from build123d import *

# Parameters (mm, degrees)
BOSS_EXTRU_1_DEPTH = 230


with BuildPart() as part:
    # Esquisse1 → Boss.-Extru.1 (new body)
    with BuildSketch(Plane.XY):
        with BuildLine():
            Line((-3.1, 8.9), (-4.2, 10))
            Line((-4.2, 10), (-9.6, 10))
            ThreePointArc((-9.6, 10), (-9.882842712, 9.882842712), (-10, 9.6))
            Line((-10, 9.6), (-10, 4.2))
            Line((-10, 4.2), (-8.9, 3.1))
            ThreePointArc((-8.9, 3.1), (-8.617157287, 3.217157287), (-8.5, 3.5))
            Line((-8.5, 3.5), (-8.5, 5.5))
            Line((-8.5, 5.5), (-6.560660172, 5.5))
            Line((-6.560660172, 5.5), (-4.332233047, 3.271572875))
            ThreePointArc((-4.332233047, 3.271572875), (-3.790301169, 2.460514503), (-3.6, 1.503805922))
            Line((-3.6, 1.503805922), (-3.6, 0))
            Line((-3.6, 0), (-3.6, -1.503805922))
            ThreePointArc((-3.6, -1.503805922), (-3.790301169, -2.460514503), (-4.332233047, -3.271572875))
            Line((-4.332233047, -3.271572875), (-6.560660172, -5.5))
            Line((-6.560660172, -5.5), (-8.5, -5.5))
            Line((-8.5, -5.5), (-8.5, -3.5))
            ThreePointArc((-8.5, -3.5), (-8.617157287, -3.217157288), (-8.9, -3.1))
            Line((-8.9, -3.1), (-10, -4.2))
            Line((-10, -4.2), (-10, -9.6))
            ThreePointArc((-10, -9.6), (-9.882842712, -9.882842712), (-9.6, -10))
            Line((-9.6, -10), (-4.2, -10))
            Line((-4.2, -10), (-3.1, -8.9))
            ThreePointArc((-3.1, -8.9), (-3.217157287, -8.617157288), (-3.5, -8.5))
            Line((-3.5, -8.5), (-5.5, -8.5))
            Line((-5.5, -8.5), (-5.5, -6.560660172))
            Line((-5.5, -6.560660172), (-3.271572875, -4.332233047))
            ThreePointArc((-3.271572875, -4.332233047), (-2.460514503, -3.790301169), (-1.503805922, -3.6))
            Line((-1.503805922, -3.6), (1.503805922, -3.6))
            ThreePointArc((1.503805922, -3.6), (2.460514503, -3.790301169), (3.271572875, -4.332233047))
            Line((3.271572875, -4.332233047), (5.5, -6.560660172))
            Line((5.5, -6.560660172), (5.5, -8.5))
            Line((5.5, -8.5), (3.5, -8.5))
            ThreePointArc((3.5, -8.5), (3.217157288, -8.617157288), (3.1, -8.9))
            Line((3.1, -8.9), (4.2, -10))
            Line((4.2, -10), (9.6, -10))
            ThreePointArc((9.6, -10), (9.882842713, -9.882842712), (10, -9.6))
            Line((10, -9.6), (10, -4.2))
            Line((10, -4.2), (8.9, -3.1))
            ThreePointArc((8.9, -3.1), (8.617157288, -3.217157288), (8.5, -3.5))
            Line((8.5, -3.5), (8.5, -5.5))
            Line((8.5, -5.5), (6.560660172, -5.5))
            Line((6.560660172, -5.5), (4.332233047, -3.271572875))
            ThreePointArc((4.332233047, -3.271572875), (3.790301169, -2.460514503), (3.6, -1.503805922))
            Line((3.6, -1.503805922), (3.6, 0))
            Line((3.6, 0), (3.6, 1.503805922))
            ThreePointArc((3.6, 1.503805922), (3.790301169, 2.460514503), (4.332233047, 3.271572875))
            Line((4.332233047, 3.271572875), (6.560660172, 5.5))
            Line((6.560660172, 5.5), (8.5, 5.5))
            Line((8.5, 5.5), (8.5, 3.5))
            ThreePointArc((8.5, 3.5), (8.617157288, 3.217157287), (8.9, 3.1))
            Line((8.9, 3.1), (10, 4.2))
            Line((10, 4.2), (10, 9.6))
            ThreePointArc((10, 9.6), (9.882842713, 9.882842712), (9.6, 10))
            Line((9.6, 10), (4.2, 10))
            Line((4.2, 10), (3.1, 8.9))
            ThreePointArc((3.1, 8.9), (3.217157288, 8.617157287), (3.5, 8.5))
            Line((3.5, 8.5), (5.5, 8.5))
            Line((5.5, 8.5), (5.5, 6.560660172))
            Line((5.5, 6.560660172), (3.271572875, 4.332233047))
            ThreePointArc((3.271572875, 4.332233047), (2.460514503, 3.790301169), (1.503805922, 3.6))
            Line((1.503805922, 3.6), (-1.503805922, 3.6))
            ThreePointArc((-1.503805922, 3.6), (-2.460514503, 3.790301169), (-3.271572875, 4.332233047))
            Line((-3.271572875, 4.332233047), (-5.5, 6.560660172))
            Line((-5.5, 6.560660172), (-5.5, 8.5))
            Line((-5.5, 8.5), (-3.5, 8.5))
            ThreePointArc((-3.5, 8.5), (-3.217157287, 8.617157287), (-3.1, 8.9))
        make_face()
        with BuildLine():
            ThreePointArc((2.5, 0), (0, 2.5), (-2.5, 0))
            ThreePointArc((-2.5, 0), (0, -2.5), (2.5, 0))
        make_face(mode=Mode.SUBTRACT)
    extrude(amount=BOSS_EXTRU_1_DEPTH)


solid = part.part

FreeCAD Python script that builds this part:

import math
import FreeCAD as App
import Part
import Sketcher

V = App.Vector
Q = App.Units.Quantity

doc = App.newDocument("Part")
body = doc.addObject("PartDesign::Body", "Body")

# Sketch on XY plane
sketch1 = doc.addObject("Sketcher::SketchObject", "Sketch")
body.addObject(sketch1)
sketch1.AttachmentSupport = (doc.XY_Plane, [""])
sketch1.MapMode = "FlatFace"
sketch1.addGeometry(Part.LineSegment(V(-3.1, 8.9, 0), V(-4.2, 10, 0)), False)
sketch1.addGeometry(Part.LineSegment(V(-4.2, 10, 0), V(-9.6, 10, 0)), False)
sketch1.addGeometry(Part.ArcOfCircle(Part.Circle(V(-9.6, 9.6, 0), V(0, 0, 1), 0.4), math.radians(90), math.radians(180)), False)
sketch1.addGeometry(Part.LineSegment(V(-10, 9.6, 0), V(-10, 4.2, 0)), False)
sketch1.addGeometry(Part.LineSegment(V(-10, 4.2, 0), V(-8.9, 3.1, 0)), False)
sketch1.addGeometry(Part.ArcOfCircle(Part.Circle(V(-8.9, 3.5, 0), V(0, 0, 1), 0.4), math.radians(-90), math.radians(0)), False)
sketch1.addGeometry(Part.LineSegment(V(-8.5, 3.5, 0), V(-8.5, 5.5, 0)), False)
sketch1.addGeometry(Part.LineSegment(V(-8.5, 5.5, 0), V(-6.56, 5.5, 0)), False)
sketch1.addGeometry(Part.LineSegment(V(-6.56, 5.5, 0), V(-4.33, 3.27, 0)), False)
sketch1.addGeometry(Part.ArcOfCircle(Part.Circle(V(-6.1, 1.5, 0), V(0, 0, 1), 2.5), math.radians(0), math.radians(45)), False)
sketch1.addGeometry(Part.LineSegment(V(-3.6, 1.5, 0), V(-3.6, -1.5, 0)), False)
sketch1.addGeometry(Part.ArcOfCircle(Part.Circle(V(-6.1, -1.5, 0), V(0, 0, 1), 2.5), math.radians(-45), math.radians(0)), False)
sketch1.addGeometry(Part.LineSegment(V(-4.33, -3.27, 0), V(-6.56, -5.5, 0)), False)
sketch1.addGeometry(Part.LineSegment(V(-6.56, -5.5, 0), V(-8.5, -5.5, 0)), False)
sketch1.addGeometry(Part.LineSegment(V(-8.5, -5.5, 0), V(-8.5, -3.5, 0)), False)
sketch1.addGeometry(Part.ArcOfCircle(Part.Circle(V(-8.9, -3.5, 0), V(0, 0, 1), 0.4), math.radians(0), math.radians(90)), False)
sketch1.addGeometry(Part.LineSegment(V(-8.9, -3.1, 0), V(-10, -4.2, 0)), False)
sketch1.addGeometry(Part.LineSegment(V(-10, -4.2, 0), V(-10, -9.6, 0)), False)
sketch1.addGeometry(Part.ArcOfCircle(Part.Circle(V(-9.6, -9.6, 0), V(0, 0, 1), 0.4), math.radians(-180), math.radians(-90)), False)
sketch1.addGeometry(Part.LineSegment(V(-9.6, -10, 0), V(-4.2, -10, 0)), False)
sketch1.addGeometry(Part.LineSegment(V(-4.2, -10, 0), V(-3.1, -8.9, 0)), False)
sketch1.addGeometry(Part.ArcOfCircle(Part.Circle(V(-3.5, -8.9, 0), V(0, 0, 1), 0.4), math.radians(0), math.radians(90)), False)
sketch1.addGeometry(Part.LineSegment(V(-3.5, -8.5, 0), V(-5.5, -8.5, 0)), False)
sketch1.addGeometry(Part.LineSegment(V(-5.5, -8.5, 0), V(-5.5, -6.56, 0)), False)
sketch1.addGeometry(Part.LineSegment(V(-5.5, -6.56, 0), V(-3.27, -4.33, 0)), False)
sketch1.addGeometry(Part.ArcOfCircle(Part.Circle(V(-1.5, -6.1, 0), V(0, 0, 1), 2.5), math.radians(90), math.radians(135)), False)
sketch1.addGeometry(Part.LineSegment(V(-1.5, -3.6, 0), V(1.5, -3.6, 0)), False)
sketch1.addGeometry(Part.ArcOfCircle(Part.Circle(V(1.5, -6.1, 0), V(0, 0, 1), 2.5), math.radians(45), math.radians(90)), False)
sketch1.addGeometry(Part.LineSegment(V(3.27, -4.33, 0), V(5.5, -6.56, 0)), False)
sketch1.addGeometry(Part.LineSegment(V(5.5, -6.56, 0), V(5.5, -8.5, 0)), False)
sketch1.addGeometry(Part.LineSegment(V(5.5, -8.5, 0), V(3.5, -8.5, 0)), False)
sketch1.addGeometry(Part.ArcOfCircle(Part.Circle(V(3.5, -8.9, 0), V(0, 0, 1), 0.4), math.radians(90), math.radians(180)), False)
sketch1.addGeometry(Part.LineSegment(V(3.1, -8.9, 0), V(4.2, -10, 0)), False)
sketch1.addGeometry(Part.LineSegment(V(4.2, -10, 0), V(9.6, -10, 0)), False)
sketch1.addGeometry(Part.ArcOfCircle(Part.Circle(V(9.6, -9.6, 0), V(0, 0, 1), 0.4), math.radians(-90), math.radians(0)), False)
sketch1.addGeometry(Part.LineSegment(V(10, -9.6, 0), V(10, -4.2, 0)), False)
sketch1.addGeometry(Part.LineSegment(V(10, -4.2, 0), V(8.9, -3.1, 0)), False)
sketch1.addGeometry(Part.ArcOfCircle(Part.Circle(V(8.9, -3.5, 0), V(0, 0, 1), 0.4), math.radians(90), math.radians(180)), False)
sketch1.addGeometry(Part.LineSegment(V(8.5, -3.5, 0), V(8.5, -5.5, 0)), False)
sketch1.addGeometry(Part.LineSegment(V(8.5, -5.5, 0), V(6.56, -5.5, 0)), False)
sketch1.addGeometry(Part.LineSegment(V(6.56, -5.5, 0), V(4.33, -3.27, 0)), False)
sketch1.addGeometry(Part.ArcOfCircle(Part.Circle(V(6.1, -1.5, 0), V(0, 0, 1), 2.5), math.radians(-180), math.radians(-135)), False)
sketch1.addGeometry(Part.LineSegment(V(3.6, -1.5, 0), V(3.6, 1.5, 0)), False)
sketch1.addGeometry(Part.ArcOfCircle(Part.Circle(V(6.1, 1.5, 0), V(0, 0, 1), 2.5), math.radians(135), math.radians(180)), False)
sketch1.addGeometry(Part.LineSegment(V(4.33, 3.27, 0), V(6.56, 5.5, 0)), False)
sketch1.addGeometry(Part.LineSegment(V(6.56, 5.5, 0), V(8.5, 5.5, 0)), False)
sketch1.addGeometry(Part.LineSegment(V(8.5, 5.5, 0), V(8.5, 3.5, 0)), False)
sketch1.addGeometry(Part.ArcOfCircle(Part.Circle(V(8.9, 3.5, 0), V(0, 0, 1), 0.4), math.radians(180), math.radians(270)), False)
sketch1.addGeometry(Part.LineSegment(V(8.9, 3.1, 0), V(10, 4.2, 0)), False)
sketch1.addGeometry(Part.LineSegment(V(10, 4.2, 0), V(10, 9.6, 0)), False)
sketch1.addGeometry(Part.ArcOfCircle(Part.Circle(V(9.6, 9.6, 0), V(0, 0, 1), 0.4), math.radians(0), math.radians(90)), False)
sketch1.addGeometry(Part.LineSegment(V(9.6, 10, 0), V(4.2, 10, 0)), False)
sketch1.addGeometry(Part.LineSegment(V(4.2, 10, 0), V(3.1, 8.9, 0)), False)
sketch1.addGeometry(Part.ArcOfCircle(Part.Circle(V(3.5, 8.9, 0), V(0, 0, 1), 0.4), math.radians(180), math.radians(270)), False)
sketch1.addGeometry(Part.LineSegment(V(3.5, 8.5, 0), V(5.5, 8.5, 0)), False)
sketch1.addGeometry(Part.LineSegment(V(5.5, 8.5, 0), V(5.5, 6.56, 0)), False)
sketch1.addGeometry(Part.LineSegment(V(5.5, 6.56, 0), V(3.27, 4.33, 0)), False)
sketch1.addGeometry(Part.ArcOfCircle(Part.Circle(V(1.5, 6.1, 0), V(0, 0, 1), 2.5), math.radians(-90), math.radians(-45)), False)
sketch1.addGeometry(Part.LineSegment(V(1.5, 3.6, 0), V(-1.5, 3.6, 0)), False)
sketch1.addGeometry(Part.ArcOfCircle(Part.Circle(V(-1.5, 6.1, 0), V(0, 0, 1), 2.5), math.radians(-135), math.radians(-90)), False)
sketch1.addGeometry(Part.LineSegment(V(-3.27, 4.33, 0), V(-5.5, 6.56, 0)), False)
sketch1.addGeometry(Part.LineSegment(V(-5.5, 6.56, 0), V(-5.5, 8.5, 0)), False)
sketch1.addGeometry(Part.LineSegment(V(-5.5, 8.5, 0), V(-3.5, 8.5, 0)), False)
sketch1.addGeometry(Part.ArcOfCircle(Part.Circle(V(-3.5, 8.9, 0), V(0, 0, 1), 0.4), math.radians(-90), math.radians(0)), False)
sketch1.addGeometry(Part.Circle(V(0, 0, 0), V(0, 0, 1), 2.5), False)
sketch1.addConstraint(Sketcher.Constraint("Coincident", 0, 2, 1, 1))
sketch1.addConstraint(Sketcher.Constraint("Tangent", 1, 2, 2, 1))
sketch1.addConstraint(Sketcher.Constraint("Tangent", 2, 2, 3, 1))
sketch1.addConstraint(Sketcher.Constraint("Coincident", 3, 2, 4, 1))
sketch1.addConstraint(Sketcher.Constraint("Coincident", 4, 2, 5, 1))
sketch1.addConstraint(Sketcher.Constraint("Tangent", 5, 2, 6, 1))
sketch1.addConstraint(Sketcher.Constraint("Coincident", 6, 2, 7, 1))
sketch1.addConstraint(Sketcher.Constraint("Coincident", 7, 2, 8, 1))
sketch1.addConstraint(Sketcher.Constraint("Tangent", 8, 2, 9, 2))
sketch1.addConstraint(Sketcher.Constraint("Tangent", 9, 1, 10, 1))
sketch1.addConstraint(Sketcher.Constraint("Tangent", 10, 2, 11, 2))
sketch1.addConstraint(Sketcher.Constraint("Tangent", 11, 1, 12, 1))
sketch1.addConstraint(Sketcher.Constraint("Coincident", 12, 2, 13, 1))
sketch1.addConstraint(Sketcher.Constraint("Coincident", 13, 2, 14, 1))
sketch1.addConstraint(Sketcher.Constraint("Tangent", 14, 2, 15, 1))
sketch1.addConstraint(Sketcher.Constraint("Coincident", 15, 2, 16, 1))
sketch1.addConstraint(Sketcher.Constraint("Coincident", 16, 2, 17, 1))
sketch1.addConstraint(Sketcher.Constraint("Tangent", 17, 2, 18, 1))
sketch1.addConstraint(Sketcher.Constraint("Tangent", 18, 2, 19, 1))
sketch1.addConstraint(Sketcher.Constraint("Coincident", 19, 2, 20, 1))
sketch1.addConstraint(Sketcher.Constraint("Coincident", 20, 2, 21, 1))
sketch1.addConstraint(Sketcher.Constraint("Tangent", 21, 2, 22, 1))
sketch1.addConstraint(Sketcher.Constraint("Coincident", 22, 2, 23, 1))
sketch1.addConstraint(Sketcher.Constraint("Coincident", 23, 2, 24, 1))
sketch1.addConstraint(Sketcher.Constraint("Tangent", 24, 2, 25, 2))
sketch1.addConstraint(Sketcher.Constraint("Tangent", 25, 1, 26, 1))
sketch1.addConstraint(Sketcher.Constraint("Tangent", 26, 2, 27, 2))
sketch1.addConstraint(Sketcher.Constraint("Tangent", 27, 1, 28, 1))
sketch1.addConstraint(Sketcher.Constraint("Coincident", 28, 2, 29, 1))
sketch1.addConstraint(Sketcher.Constraint("Coincident", 29, 2, 30, 1))
sketch1.addConstraint(Sketcher.Constraint("Tangent", 30, 2, 31, 1))
sketch1.addConstraint(Sketcher.Constraint("Coincident", 31, 2, 32, 1))
sketch1.addConstraint(Sketcher.Constraint("Coincident", 32, 2, 33, 1))
sketch1.addConstraint(Sketcher.Constraint("Tangent", 33, 2, 34, 1))
sketch1.addConstraint(Sketcher.Constraint("Tangent", 34, 2, 35, 1))
sketch1.addConstraint(Sketcher.Constraint("Coincident", 35, 2, 36, 1))
sketch1.addConstraint(Sketcher.Constraint("Coincident", 36, 2, 37, 1))
sketch1.addConstraint(Sketcher.Constraint("Tangent", 37, 2, 38, 1))
sketch1.addConstraint(Sketcher.Constraint("Coincident", 38, 2, 39, 1))
sketch1.addConstraint(Sketcher.Constraint("Coincident", 39, 2, 40, 1))
sketch1.addConstraint(Sketcher.Constraint("Tangent", 40, 2, 41, 2))
sketch1.addConstraint(Sketcher.Constraint("Tangent", 41, 1, 42, 1))
sketch1.addConstraint(Sketcher.Constraint("Tangent", 42, 2, 43, 2))
sketch1.addConstraint(Sketcher.Constraint("Tangent", 43, 1, 44, 1))
sketch1.addConstraint(Sketcher.Constraint("Coincident", 44, 2, 45, 1))
sketch1.addConstraint(Sketcher.Constraint("Coincident", 45, 2, 46, 1))
sketch1.addConstraint(Sketcher.Constraint("Tangent", 46, 2, 47, 1))
sketch1.addConstraint(Sketcher.Constraint("Coincident", 47, 2, 48, 1))
sketch1.addConstraint(Sketcher.Constraint("Coincident", 48, 2, 49, 1))
sketch1.addConstraint(Sketcher.Constraint("Tangent", 49, 2, 50, 1))
sketch1.addConstraint(Sketcher.Constraint("Tangent", 50, 2, 51, 1))
sketch1.addConstraint(Sketcher.Constraint("Coincident", 51, 2, 52, 1))
sketch1.addConstraint(Sketcher.Constraint("Coincident", 52, 2, 53, 1))
sketch1.addConstraint(Sketcher.Constraint("Tangent", 53, 2, 54, 1))
sketch1.addConstraint(Sketcher.Constraint("Coincident", 54, 2, 55, 1))
sketch1.addConstraint(Sketcher.Constraint("Coincident", 55, 2, 56, 1))
sketch1.addConstraint(Sketcher.Constraint("Tangent", 56, 2, 57, 2))
sketch1.addConstraint(Sketcher.Constraint("Tangent", 57, 1, 58, 1))
sketch1.addConstraint(Sketcher.Constraint("Tangent", 58, 2, 59, 2))
sketch1.addConstraint(Sketcher.Constraint("Tangent", 59, 1, 60, 1))
sketch1.addConstraint(Sketcher.Constraint("Coincident", 60, 2, 61, 1))
sketch1.addConstraint(Sketcher.Constraint("Coincident", 61, 2, 62, 1))
sketch1.addConstraint(Sketcher.Constraint("Tangent", 62, 2, 63, 1))
sketch1.addConstraint(Sketcher.Constraint("Coincident", 63, 2, 0, 1))
sketch1.addConstraint(Sketcher.Constraint("Horizontal", 1))
sketch1.addConstraint(Sketcher.Constraint("Vertical", 3))
sketch1.addConstraint(Sketcher.Constraint("Vertical", 6))
sketch1.addConstraint(Sketcher.Constraint("Horizontal", 7))
sketch1.addConstraint(Sketcher.Constraint("Vertical", 10))
sketch1.addConstraint(Sketcher.Constraint("Horizontal", 13))
sketch1.addConstraint(Sketcher.Constraint("Vertical", 14))
sketch1.addConstraint(Sketcher.Constraint("Vertical", 17))
sketch1.addConstraint(Sketcher.Constraint("Horizontal", 19))
sketch1.addConstraint(Sketcher.Constraint("Horizontal", 22))
sketch1.addConstraint(Sketcher.Constraint("Vertical", 23))
sketch1.addConstraint(Sketcher.Constraint("Horizontal", 26))
sketch1.addConstraint(Sketcher.Constraint("Vertical", 29))
sketch1.addConstraint(Sketcher.Constraint("Horizontal", 30))
sketch1.addConstraint(Sketcher.Constraint("Horizontal", 33))
sketch1.addConstraint(Sketcher.Constraint("Vertical", 35))
sketch1.addConstraint(Sketcher.Constraint("Vertical", 38))
sketch1.addConstraint(Sketcher.Constraint("Horizontal", 39))
sketch1.addConstraint(Sketcher.Constraint("Vertical", 42))
sketch1.addConstraint(Sketcher.Constraint("Horizontal", 45))
sketch1.addConstraint(Sketcher.Constraint("Vertical", 46))
sketch1.addConstraint(Sketcher.Constraint("Vertical", 49))
sketch1.addConstraint(Sketcher.Constraint("Horizontal", 51))
sketch1.addConstraint(Sketcher.Constraint("Horizontal", 54))
sketch1.addConstraint(Sketcher.Constraint("Vertical", 55))
sketch1.addConstraint(Sketcher.Constraint("Horizontal", 58))
sketch1.addConstraint(Sketcher.Constraint("Vertical", 61))
sketch1.addConstraint(Sketcher.Constraint("Horizontal", 62))
sketch1.addConstraint(Sketcher.Constraint("Coincident", 64, 3, -1, 1))
sketch1.addConstraint(Sketcher.Constraint("Equal", 2, 5))
sketch1.addConstraint(Sketcher.Constraint("Equal", 9, 11))
sketch1.addConstraint(Sketcher.Constraint("Equal", 5, 15))
sketch1.addConstraint(Sketcher.Constraint("Equal", 15, 18))
sketch1.addConstraint(Sketcher.Constraint("Equal", 18, 21))
sketch1.addConstraint(Sketcher.Constraint("Equal", 11, 25))
sketch1.addConstraint(Sketcher.Constraint("Equal", 25, 27))
sketch1.addConstraint(Sketcher.Constraint("Equal", 21, 31))
sketch1.addConstraint(Sketcher.Constraint("Equal", 31, 34))
sketch1.addConstraint(Sketcher.Constraint("Equal", 34, 37))
sketch1.addConstraint(Sketcher.Constraint("Equal", 27, 41))
sketch1.addConstraint(Sketcher.Constraint("Equal", 41, 43))
sketch1.addConstraint(Sketcher.Constraint("Equal", 37, 47))
sketch1.addConstraint(Sketcher.Constraint("Equal", 47, 50))
sketch1.addConstraint(Sketcher.Constraint("Equal", 50, 53))
sketch1.addConstraint(Sketcher.Constraint("Equal", 43, 57))
sketch1.addConstraint(Sketcher.Constraint("Equal", 57, 59))
sketch1.addConstraint(Sketcher.Constraint("Equal", 53, 63))
sketch1.addConstraint(Sketcher.Constraint("Equal", 59, 64))
sketch1.addConstraint(Sketcher.Constraint("Symmetric", 2, 3, 34, 3, -1, 1))
sketch1.addConstraint(Sketcher.Constraint("Symmetric", 5, 3, 37, 3, -1, 1))
sketch1.addConstraint(Sketcher.Constraint("Symmetric", 9, 3, 41, 3, -1, 1))
sketch1.addConstraint(Sketcher.Constraint("Symmetric", 15, 3, 47, 3, -1, 1))
sketch1.addConstraint(Sketcher.Constraint("Symmetric", 18, 3, 50, 3, -1, 1))
sketch1.addConstraint(Sketcher.Constraint("Symmetric", 21, 3, 53, 3, -1, 1))
sketch1.addConstraint(Sketcher.Constraint("Symmetric", 25, 3, 57, 3, -1, 1))
sketch1.addConstraint(Sketcher.Constraint("Symmetric", 31, 3, 63, 3, -1, 1))
sketch1.addConstraint(Sketcher.Constraint("Symmetric", 7, 2, 39, 2, -1, 1))
sketch1.addConstraint(Sketcher.Constraint("Symmetric", 11, 1, 43, 1, -1, 1))
sketch1.addConstraint(Sketcher.Constraint("Symmetric", 23, 2, 55, 2, -1, 1))
sketch1.addConstraint(Sketcher.Constraint("Symmetric", 27, 1, 59, 1, -1, 1))
sketch1.addConstraint(Sketcher.Constraint("Symmetric", 21, 3, 31, 3, -2))
sketch1.addConstraint(Sketcher.Constraint("Symmetric", 18, 3, 34, 3, -2))
sketch1.addConstraint(Sketcher.Constraint("Symmetric", 15, 3, 37, 3, -2))
sketch1.addConstraint(Sketcher.Constraint("Symmetric", 24, 2, 27, 1, -2))
sketch1.addConstraint(Sketcher.Constraint("Symmetric", 12, 2, 39, 2, -2))
sketch1.addConstraint(Sketcher.Constraint("Parallel", 0, 4))
sketch1.addConstraint(Sketcher.Constraint("Parallel", 4, 8))
sketch1.addConstraint(Sketcher.Constraint("Perpendicular", 8, 12))
sketch1.addConstraint(Sketcher.Constraint("Parallel", 12, 16))
sketch1.addConstraint(Sketcher.Constraint("Parallel", 16, 20))
sketch1.addConstraint(Sketcher.Constraint("Parallel", 20, 24))
sketch1.addConstraint(Sketcher.Constraint("Perpendicular", 24, 28))
sketch1.addConstraint(Sketcher.Constraint("Parallel", 28, 32))
sketch1.addConstraint(Sketcher.Constraint("Parallel", 32, 36))
sketch1.addConstraint(Sketcher.Constraint("Parallel", 44, 48))
sketch1.addConstraint(Sketcher.Constraint("Parallel", 48, 52))
sketch1.addConstraint(Sketcher.Constraint("Horizontal", 31, 3, 20, 2))
sketch1.addConstraint(Sketcher.Constraint("Horizontal", 23, 2, 28, 2))
sketch1.addConstraint(Sketcher.Constraint("Horizontal", 20, 2, 31, 2))
sketch1.addConstraint(Sketcher.Constraint("Horizontal", 16, 2, 35, 2))
sketch1.addConstraint(Sketcher.Constraint("Horizontal", 7, 2, 44, 2))
sketch1.addConstraint(Sketcher.Constraint("Horizontal", 3, 2, 48, 2))
sketch1.addConstraint(Sketcher.Constraint("Horizontal", 63, 3, 52, 2))
sketch1.addConstraint(Sketcher.Constraint("Horizontal", 55, 2, 60, 2))
sketch1.addConstraint(Sketcher.Constraint("Horizontal", 52, 2, 63, 2))
sketch1.addConstraint(Sketcher.Constraint("Vertical", 15, 3, 4, 2))
sketch1.addConstraint(Sketcher.Constraint("Vertical", 4, 2, 15, 2))
sketch1.addConstraint(Sketcher.Constraint("Equal", 51, 3))
sketch1.addConstraint(Sketcher.Constraint("Equal", 62, 6))
sketch1.addConstraint(Sketcher.Constraint("Equal", 58, 10))
sketch1.addConstraint(Sketcher.Constraint("Equal", 45, 23))
sketch1.addConstraint(Sketcher.Constraint("Equal", 0, 4))
sketch1.addConstraint(Sketcher.Constraint("Equal", 12, 24))
sketch1.addConstraint(Sketcher.Constraint("Diameter", 64, Q("5 mm")))
sketch1.addConstraint(Sketcher.Constraint("Radius", 2, Q("0.4 mm")))
sketch1.addConstraint(Sketcher.Constraint("DistanceX", 22, 2, 22, 1, Q("2 mm")))
sketch1.addConstraint(Sketcher.Constraint("DistanceX", 1, 2, 1, 1, Q("5.4 mm")))
sketch1.addConstraint(Sketcher.Constraint("DistanceY", -1, 1, 0, 2, Q("10 mm")))
sketch1.addConstraint(Sketcher.Constraint("DistanceX", 5, 3, -1, 1, Q("8.9 mm")))
sketch1.addConstraint(Sketcher.Constraint("DistanceX", 9, 3, -1, 1, Q("6.1 mm")))
sketch1.addConstraint(Sketcher.Constraint("DistanceX", 7, 1, 7, 2, Q("1.93934 mm")))
pad1 = doc.addObject("PartDesign::Pad", "Pad")
body.addObject(pad1)
pad1.Profile = sketch1
pad1.Length = 230

doc.recompute()
